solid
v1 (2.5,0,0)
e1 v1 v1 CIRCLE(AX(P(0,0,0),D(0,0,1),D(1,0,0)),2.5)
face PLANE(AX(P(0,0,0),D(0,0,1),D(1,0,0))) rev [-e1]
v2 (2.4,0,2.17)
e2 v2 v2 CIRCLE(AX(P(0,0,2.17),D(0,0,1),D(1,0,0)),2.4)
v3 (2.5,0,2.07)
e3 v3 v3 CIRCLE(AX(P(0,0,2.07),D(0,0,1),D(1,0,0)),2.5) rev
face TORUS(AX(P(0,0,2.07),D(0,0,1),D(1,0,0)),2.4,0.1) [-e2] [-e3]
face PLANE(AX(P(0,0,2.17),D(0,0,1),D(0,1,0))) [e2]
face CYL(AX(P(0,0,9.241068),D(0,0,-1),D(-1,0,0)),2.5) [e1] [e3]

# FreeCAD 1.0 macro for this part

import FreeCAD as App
import Part
import Sketcher
from FreeCAD import Vector


def edges_at(feature, points):
    """Names of the edges that pass closest to the given points."""
    edges = feature.Shape.Edges
    near = lambda p: min(range(len(edges)), key=lambda i: edges[i].distToShape(Part.Vertex(*p))[0])
    return sorted({f"Edge{near(p) + 1}" for p in points})

doc = App.newDocument("Part")
body = doc.addObject("PartDesign::Body", "Body")

sketch1 = body.newObject("Sketcher::SketchObject", "Sketch")
sketch1.AttachmentSupport = (doc.getObject("XY_Plane"), [""])
sketch1.MapMode = "FlatFace"
sketch1.addGeometry(Part.Circle(Vector(0, 0, 0), Vector(0, 0, 1), 2.5), False)
sketch1.addConstraint([
    Sketcher.Constraint("Coincident", 0, 3, -1, 1),
    Sketcher.Constraint("Diameter", 0, 5.0),
])
pad1 = body.newObject("PartDesign::Pad", "Pad")
pad1.Profile = sketch1
pad1.Length = 2.17
doc.recompute()

fillet = body.newObject("PartDesign::Fillet", "Fillet")
fillet.Base = (pad1, edges_at(pad1, [(-2.5, 0, 2.17)]))
fillet.Radius = 0.1

doc.recompute()
